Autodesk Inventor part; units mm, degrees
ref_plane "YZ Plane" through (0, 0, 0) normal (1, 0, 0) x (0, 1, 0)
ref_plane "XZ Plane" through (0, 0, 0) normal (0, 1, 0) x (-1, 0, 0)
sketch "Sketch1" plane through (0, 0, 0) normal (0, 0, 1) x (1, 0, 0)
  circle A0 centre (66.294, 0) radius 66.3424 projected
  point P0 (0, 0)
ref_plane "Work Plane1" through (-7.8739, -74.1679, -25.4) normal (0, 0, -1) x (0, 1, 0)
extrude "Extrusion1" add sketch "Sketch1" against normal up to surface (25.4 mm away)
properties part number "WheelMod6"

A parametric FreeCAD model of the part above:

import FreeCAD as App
import Part
import Sketcher
from FreeCAD import Vector
Q = App.Units.Quantity

doc = App.newDocument("Part")
body = doc.addObject("PartDesign::Body", "Body")

# Sketch on XY plane
sketch1 = doc.addObject("Sketcher::SketchObject", "Sketch")
body.addObject(sketch1)
sketch1.AttachmentSupport = (doc.XY_Plane, [""])
sketch1.MapMode = "FlatFace"
sketch1.addGeometry(Part.Circle(Vector(66.294, 0, 0), Vector(0, 0, 1), 66.3424), False)
sketch1.addConstraint([
    Sketcher.Constraint("PointOnObject", 0, 3, -1),
    Sketcher.Constraint("Diameter", 0, Q("5.2238 in")),
    Sketcher.Constraint("DistanceX", -1, 1, 0, 3, Q("2.61 in")),
])
pad1 = doc.addObject("PartDesign::Pad", "Pad")
body.addObject(pad1)
pad1.Profile = sketch1
pad1.Length = Q("1 in")
pad1.Reversed = True

doc.recompute()
